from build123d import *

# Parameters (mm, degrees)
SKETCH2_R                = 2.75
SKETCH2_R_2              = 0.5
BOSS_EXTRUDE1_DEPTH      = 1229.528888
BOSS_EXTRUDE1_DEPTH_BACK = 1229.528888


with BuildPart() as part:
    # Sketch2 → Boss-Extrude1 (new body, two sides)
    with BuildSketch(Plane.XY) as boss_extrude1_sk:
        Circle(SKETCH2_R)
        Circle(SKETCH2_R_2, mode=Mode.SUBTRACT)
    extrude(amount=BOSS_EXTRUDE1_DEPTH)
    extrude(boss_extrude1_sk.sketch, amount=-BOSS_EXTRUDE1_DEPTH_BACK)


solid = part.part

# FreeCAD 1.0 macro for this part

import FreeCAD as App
import Part
import Sketcher

doc = App.newDocument("Part")
body = doc.addObject("PartDesign::Body", "Body")

# Sketch on XY plane
sketch1 = body.newObject("Sketcher::SketchObject", "Sketch")
sketch1.AttachmentSupport = (doc.getObject("XY_Plane"), [""])
sketch1.MapMode = "FlatFace"
sketch1.addGeometry(Part.Circle(App.Vector(0, 0, 0), App.Vector(0, 0, 1), 2.75), False)
sketch1.addGeometry(Part.Circle(App.Vector(0, 0, 0), App.Vector(0, 0, 1), 0.5), False)
sketch1.addConstraint(Sketcher.Constraint("Coincident", 0, 3, -1, 1))
sketch1.addConstraint(Sketcher.Constraint("Coincident", 1, 3, -1, 1))
sketch1.addConstraint(Sketcher.Constraint("Diameter", 1, 1.0))
sketch1.addConstraint(Sketcher.Constraint("Diameter", 0, 5.5))
pad1 = body.newObject("PartDesign::Pad", "Pad")
pad1.Profile = sketch1
pad1.Type = "TwoLengths"
pad1.Length = 1229.528888
pad1.Length2 = 1229.528888

doc.recompute()
